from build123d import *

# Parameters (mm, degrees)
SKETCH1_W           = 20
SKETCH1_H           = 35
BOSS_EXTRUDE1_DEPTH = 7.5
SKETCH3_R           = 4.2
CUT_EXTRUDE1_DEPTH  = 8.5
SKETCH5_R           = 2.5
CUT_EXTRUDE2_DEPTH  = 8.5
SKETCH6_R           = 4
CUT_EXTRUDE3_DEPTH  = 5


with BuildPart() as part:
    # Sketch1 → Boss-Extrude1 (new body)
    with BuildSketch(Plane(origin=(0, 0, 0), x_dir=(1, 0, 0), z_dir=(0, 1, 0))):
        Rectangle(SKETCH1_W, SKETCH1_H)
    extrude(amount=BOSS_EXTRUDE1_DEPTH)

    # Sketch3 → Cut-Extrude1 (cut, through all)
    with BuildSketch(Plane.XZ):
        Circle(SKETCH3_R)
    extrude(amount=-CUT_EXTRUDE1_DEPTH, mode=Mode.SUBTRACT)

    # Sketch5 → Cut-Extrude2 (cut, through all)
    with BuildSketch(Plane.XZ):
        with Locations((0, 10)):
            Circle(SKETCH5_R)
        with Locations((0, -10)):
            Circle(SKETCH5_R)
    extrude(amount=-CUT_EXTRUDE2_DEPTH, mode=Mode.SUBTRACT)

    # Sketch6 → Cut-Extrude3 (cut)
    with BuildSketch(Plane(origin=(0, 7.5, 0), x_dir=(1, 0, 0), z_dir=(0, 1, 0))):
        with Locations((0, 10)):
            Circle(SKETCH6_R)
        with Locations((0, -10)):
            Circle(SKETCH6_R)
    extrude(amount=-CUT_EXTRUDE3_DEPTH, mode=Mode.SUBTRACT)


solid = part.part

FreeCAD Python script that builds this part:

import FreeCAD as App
import Part
import Sketcher

V = App.Vector
Q = App.Units.Quantity


def add_polygon(sketch, points):
    """Adds a closed chain of lines whose ends are joined by coincident constraints."""
    first, n = sketch.GeometryCount, len(points)
    for a, b in zip(points, points[1:] + points[:1]):
        sketch.addGeometry(Part.LineSegment(App.Vector(*a, 0), App.Vector(*b, 0)), False)
    for i in range(n):
        sketch.addConstraint(Sketcher.Constraint("Coincident", first + i, 2, first + (i + 1) % n, 1))

doc = App.newDocument("Part")
params = doc.addObject("Spreadsheet::Sheet", "Params")
for row, (alias, value) in enumerate([
    ("sketch1_width", "20 mm"),
    ("sketch1_height", "35 mm"),
    ("pad1_length", "7.5 mm"),
    ("sketch2_diameter", "8.4 mm"),
    ("sketch3_diameter", "5 mm"),
    ("sketch4_diameter", "8 mm"),
    ("pocket3_length", "5 mm"),
], start=1):
    params.set(f"A{row}", alias)
    params.set(f"B{row}", "=" + value)
    params.setAlias(f"B{row}", alias)

body = doc.addObject("PartDesign::Body", "Body")

# Sketch on XZ plane
sketch1 = doc.addObject("Sketcher::SketchObject", "Sketch")
body.addObject(sketch1)
sketch1.AttachmentSupport = (doc.XZ_Plane, [""])
sketch1.MapMode = "FlatFace"
add_polygon(sketch1, [(-10, -17.5), (-10, 17.5), (10, 17.5), (10, -17.5)])  # lines 0-3
sketch1.addConstraint(Sketcher.Constraint("Vertical", 0))
sketch1.addConstraint(Sketcher.Constraint("Horizontal", 1))
sketch1.addConstraint(Sketcher.Constraint("Vertical", 2))
sketch1.addConstraint(Sketcher.Constraint("Horizontal", 3))
sketch1.addConstraint(Sketcher.Constraint("Symmetric", 0, 2, 2, 2, -1, 1))
sketch1.addConstraint(Sketcher.Constraint("DistanceX", 1, 1, 1, 2, Q("20 mm")))
sketch1.addConstraint(Sketcher.Constraint("DistanceY", 0, 1, 0, 2, Q("35 mm")))
sketch1.setExpression("Constraints[9]", "Params.sketch1_width")
sketch1.setExpression("Constraints[10]", "Params.sketch1_height")
pad1 = doc.addObject("PartDesign::Pad", "Pad")
body.addObject(pad1)
pad1.Profile = sketch1
pad1.setExpression("Length", "Params.pad1_length")
pad1.Reversed = True

# Sketch on XZ plane
sketch2 = doc.addObject("Sketcher::SketchObject", "Sketch001")
body.addObject(sketch2)
sketch2.AttachmentSupport = (doc.XZ_Plane, [""])
sketch2.MapMode = "FlatFace"
sketch2.addGeometry(Part.Circle(V(0, 0, 0), V(0, 0, 1), 4.2), False)
sketch2.addConstraint(Sketcher.Constraint("Coincident", 0, 3, -1, 1))
sketch2.addConstraint(Sketcher.Constraint("Diameter", 0, Q("8.4 mm")))
sketch2.setExpression("Constraints[1]", "Params.sketch2_diameter")
pocket1 = doc.addObject("PartDesign::Pocket", "Pocket")
body.addObject(pocket1)
pocket1.Profile = sketch2
pocket1.Type = "ThroughAll"

# Sketch on XZ plane
sketch3 = doc.addObject("Sketcher::SketchObject", "Sketch002")
body.addObject(sketch3)
sketch3.AttachmentSupport = (doc.XZ_Plane, [""])
sketch3.MapMode = "FlatFace"
sketch3.addGeometry(Part.Circle(V(0, 10, 0), V(0, 0, 1), 2.5), False)
sketch3.addGeometry(Part.Circle(V(0, -10, 0), V(0, 0, 1), 2.5), False)
sketch3.addConstraint(Sketcher.Constraint("Equal", 0, 1))
sketch3.addConstraint(Sketcher.Constraint("Symmetric", 0, 3, 1, 3, -1, 1))
sketch3.addConstraint(Sketcher.Constraint("PointOnObject", 0, 3, -2))
sketch3.addConstraint(Sketcher.Constraint("Diameter", 0, Q("5 mm")))
sketch3.addConstraint(Sketcher.Constraint("DistanceY", -1, 1, 0, 3, Q("10 mm")))
sketch3.setExpression("Constraints[3]", "Params.sketch3_diameter")
pocket2 = doc.addObject("PartDesign::Pocket", "Pocket001")
body.addObject(pocket2)
pocket2.Profile = sketch3
pocket2.Type = "ThroughAll"

# Sketch on XZ plane
sketch4 = doc.addObject("Sketcher::SketchObject", "Sketch003")
body.addObject(sketch4)
sketch4.AttachmentSupport = (doc.XZ_Plane, [""])
sketch4.MapMode = "FlatFace"
sketch4.AttachmentOffset = App.Placement(V(0, 0, -7.5), App.Rotation())
sketch4.addGeometry(Part.Circle(V(0, -10, 0), V(0, 0, 1), 4), False)
sketch4.addGeometry(Part.Circle(V(0, 10, 0), V(0, 0, 1), 4), False)
sketch4.addConstraint(Sketcher.Constraint("Equal", 0, 1))
sketch4.addConstraint(Sketcher.Constraint("Symmetric", 0, 3, 1, 3, -1, 1))
sketch4.addConstraint(Sketcher.Constraint("PointOnObject", 0, 3, -2))
sketch4.addConstraint(Sketcher.Constraint("Diameter", 0, Q("8 mm")))
sketch4.addConstraint(Sketcher.Constraint("DistanceY", 0, 3, -1, 1, Q("10 mm")))
sketch4.setExpression("Constraints[3]", "Params.sketch4_diameter")
pocket3 = doc.addObject("PartDesign::Pocket", "Pocket002")
body.addObject(pocket3)
pocket3.Profile = sketch4
pocket3.setExpression("Length", "Params.pocket3_length")
pocket3.Reversed = True

doc.recompute()
